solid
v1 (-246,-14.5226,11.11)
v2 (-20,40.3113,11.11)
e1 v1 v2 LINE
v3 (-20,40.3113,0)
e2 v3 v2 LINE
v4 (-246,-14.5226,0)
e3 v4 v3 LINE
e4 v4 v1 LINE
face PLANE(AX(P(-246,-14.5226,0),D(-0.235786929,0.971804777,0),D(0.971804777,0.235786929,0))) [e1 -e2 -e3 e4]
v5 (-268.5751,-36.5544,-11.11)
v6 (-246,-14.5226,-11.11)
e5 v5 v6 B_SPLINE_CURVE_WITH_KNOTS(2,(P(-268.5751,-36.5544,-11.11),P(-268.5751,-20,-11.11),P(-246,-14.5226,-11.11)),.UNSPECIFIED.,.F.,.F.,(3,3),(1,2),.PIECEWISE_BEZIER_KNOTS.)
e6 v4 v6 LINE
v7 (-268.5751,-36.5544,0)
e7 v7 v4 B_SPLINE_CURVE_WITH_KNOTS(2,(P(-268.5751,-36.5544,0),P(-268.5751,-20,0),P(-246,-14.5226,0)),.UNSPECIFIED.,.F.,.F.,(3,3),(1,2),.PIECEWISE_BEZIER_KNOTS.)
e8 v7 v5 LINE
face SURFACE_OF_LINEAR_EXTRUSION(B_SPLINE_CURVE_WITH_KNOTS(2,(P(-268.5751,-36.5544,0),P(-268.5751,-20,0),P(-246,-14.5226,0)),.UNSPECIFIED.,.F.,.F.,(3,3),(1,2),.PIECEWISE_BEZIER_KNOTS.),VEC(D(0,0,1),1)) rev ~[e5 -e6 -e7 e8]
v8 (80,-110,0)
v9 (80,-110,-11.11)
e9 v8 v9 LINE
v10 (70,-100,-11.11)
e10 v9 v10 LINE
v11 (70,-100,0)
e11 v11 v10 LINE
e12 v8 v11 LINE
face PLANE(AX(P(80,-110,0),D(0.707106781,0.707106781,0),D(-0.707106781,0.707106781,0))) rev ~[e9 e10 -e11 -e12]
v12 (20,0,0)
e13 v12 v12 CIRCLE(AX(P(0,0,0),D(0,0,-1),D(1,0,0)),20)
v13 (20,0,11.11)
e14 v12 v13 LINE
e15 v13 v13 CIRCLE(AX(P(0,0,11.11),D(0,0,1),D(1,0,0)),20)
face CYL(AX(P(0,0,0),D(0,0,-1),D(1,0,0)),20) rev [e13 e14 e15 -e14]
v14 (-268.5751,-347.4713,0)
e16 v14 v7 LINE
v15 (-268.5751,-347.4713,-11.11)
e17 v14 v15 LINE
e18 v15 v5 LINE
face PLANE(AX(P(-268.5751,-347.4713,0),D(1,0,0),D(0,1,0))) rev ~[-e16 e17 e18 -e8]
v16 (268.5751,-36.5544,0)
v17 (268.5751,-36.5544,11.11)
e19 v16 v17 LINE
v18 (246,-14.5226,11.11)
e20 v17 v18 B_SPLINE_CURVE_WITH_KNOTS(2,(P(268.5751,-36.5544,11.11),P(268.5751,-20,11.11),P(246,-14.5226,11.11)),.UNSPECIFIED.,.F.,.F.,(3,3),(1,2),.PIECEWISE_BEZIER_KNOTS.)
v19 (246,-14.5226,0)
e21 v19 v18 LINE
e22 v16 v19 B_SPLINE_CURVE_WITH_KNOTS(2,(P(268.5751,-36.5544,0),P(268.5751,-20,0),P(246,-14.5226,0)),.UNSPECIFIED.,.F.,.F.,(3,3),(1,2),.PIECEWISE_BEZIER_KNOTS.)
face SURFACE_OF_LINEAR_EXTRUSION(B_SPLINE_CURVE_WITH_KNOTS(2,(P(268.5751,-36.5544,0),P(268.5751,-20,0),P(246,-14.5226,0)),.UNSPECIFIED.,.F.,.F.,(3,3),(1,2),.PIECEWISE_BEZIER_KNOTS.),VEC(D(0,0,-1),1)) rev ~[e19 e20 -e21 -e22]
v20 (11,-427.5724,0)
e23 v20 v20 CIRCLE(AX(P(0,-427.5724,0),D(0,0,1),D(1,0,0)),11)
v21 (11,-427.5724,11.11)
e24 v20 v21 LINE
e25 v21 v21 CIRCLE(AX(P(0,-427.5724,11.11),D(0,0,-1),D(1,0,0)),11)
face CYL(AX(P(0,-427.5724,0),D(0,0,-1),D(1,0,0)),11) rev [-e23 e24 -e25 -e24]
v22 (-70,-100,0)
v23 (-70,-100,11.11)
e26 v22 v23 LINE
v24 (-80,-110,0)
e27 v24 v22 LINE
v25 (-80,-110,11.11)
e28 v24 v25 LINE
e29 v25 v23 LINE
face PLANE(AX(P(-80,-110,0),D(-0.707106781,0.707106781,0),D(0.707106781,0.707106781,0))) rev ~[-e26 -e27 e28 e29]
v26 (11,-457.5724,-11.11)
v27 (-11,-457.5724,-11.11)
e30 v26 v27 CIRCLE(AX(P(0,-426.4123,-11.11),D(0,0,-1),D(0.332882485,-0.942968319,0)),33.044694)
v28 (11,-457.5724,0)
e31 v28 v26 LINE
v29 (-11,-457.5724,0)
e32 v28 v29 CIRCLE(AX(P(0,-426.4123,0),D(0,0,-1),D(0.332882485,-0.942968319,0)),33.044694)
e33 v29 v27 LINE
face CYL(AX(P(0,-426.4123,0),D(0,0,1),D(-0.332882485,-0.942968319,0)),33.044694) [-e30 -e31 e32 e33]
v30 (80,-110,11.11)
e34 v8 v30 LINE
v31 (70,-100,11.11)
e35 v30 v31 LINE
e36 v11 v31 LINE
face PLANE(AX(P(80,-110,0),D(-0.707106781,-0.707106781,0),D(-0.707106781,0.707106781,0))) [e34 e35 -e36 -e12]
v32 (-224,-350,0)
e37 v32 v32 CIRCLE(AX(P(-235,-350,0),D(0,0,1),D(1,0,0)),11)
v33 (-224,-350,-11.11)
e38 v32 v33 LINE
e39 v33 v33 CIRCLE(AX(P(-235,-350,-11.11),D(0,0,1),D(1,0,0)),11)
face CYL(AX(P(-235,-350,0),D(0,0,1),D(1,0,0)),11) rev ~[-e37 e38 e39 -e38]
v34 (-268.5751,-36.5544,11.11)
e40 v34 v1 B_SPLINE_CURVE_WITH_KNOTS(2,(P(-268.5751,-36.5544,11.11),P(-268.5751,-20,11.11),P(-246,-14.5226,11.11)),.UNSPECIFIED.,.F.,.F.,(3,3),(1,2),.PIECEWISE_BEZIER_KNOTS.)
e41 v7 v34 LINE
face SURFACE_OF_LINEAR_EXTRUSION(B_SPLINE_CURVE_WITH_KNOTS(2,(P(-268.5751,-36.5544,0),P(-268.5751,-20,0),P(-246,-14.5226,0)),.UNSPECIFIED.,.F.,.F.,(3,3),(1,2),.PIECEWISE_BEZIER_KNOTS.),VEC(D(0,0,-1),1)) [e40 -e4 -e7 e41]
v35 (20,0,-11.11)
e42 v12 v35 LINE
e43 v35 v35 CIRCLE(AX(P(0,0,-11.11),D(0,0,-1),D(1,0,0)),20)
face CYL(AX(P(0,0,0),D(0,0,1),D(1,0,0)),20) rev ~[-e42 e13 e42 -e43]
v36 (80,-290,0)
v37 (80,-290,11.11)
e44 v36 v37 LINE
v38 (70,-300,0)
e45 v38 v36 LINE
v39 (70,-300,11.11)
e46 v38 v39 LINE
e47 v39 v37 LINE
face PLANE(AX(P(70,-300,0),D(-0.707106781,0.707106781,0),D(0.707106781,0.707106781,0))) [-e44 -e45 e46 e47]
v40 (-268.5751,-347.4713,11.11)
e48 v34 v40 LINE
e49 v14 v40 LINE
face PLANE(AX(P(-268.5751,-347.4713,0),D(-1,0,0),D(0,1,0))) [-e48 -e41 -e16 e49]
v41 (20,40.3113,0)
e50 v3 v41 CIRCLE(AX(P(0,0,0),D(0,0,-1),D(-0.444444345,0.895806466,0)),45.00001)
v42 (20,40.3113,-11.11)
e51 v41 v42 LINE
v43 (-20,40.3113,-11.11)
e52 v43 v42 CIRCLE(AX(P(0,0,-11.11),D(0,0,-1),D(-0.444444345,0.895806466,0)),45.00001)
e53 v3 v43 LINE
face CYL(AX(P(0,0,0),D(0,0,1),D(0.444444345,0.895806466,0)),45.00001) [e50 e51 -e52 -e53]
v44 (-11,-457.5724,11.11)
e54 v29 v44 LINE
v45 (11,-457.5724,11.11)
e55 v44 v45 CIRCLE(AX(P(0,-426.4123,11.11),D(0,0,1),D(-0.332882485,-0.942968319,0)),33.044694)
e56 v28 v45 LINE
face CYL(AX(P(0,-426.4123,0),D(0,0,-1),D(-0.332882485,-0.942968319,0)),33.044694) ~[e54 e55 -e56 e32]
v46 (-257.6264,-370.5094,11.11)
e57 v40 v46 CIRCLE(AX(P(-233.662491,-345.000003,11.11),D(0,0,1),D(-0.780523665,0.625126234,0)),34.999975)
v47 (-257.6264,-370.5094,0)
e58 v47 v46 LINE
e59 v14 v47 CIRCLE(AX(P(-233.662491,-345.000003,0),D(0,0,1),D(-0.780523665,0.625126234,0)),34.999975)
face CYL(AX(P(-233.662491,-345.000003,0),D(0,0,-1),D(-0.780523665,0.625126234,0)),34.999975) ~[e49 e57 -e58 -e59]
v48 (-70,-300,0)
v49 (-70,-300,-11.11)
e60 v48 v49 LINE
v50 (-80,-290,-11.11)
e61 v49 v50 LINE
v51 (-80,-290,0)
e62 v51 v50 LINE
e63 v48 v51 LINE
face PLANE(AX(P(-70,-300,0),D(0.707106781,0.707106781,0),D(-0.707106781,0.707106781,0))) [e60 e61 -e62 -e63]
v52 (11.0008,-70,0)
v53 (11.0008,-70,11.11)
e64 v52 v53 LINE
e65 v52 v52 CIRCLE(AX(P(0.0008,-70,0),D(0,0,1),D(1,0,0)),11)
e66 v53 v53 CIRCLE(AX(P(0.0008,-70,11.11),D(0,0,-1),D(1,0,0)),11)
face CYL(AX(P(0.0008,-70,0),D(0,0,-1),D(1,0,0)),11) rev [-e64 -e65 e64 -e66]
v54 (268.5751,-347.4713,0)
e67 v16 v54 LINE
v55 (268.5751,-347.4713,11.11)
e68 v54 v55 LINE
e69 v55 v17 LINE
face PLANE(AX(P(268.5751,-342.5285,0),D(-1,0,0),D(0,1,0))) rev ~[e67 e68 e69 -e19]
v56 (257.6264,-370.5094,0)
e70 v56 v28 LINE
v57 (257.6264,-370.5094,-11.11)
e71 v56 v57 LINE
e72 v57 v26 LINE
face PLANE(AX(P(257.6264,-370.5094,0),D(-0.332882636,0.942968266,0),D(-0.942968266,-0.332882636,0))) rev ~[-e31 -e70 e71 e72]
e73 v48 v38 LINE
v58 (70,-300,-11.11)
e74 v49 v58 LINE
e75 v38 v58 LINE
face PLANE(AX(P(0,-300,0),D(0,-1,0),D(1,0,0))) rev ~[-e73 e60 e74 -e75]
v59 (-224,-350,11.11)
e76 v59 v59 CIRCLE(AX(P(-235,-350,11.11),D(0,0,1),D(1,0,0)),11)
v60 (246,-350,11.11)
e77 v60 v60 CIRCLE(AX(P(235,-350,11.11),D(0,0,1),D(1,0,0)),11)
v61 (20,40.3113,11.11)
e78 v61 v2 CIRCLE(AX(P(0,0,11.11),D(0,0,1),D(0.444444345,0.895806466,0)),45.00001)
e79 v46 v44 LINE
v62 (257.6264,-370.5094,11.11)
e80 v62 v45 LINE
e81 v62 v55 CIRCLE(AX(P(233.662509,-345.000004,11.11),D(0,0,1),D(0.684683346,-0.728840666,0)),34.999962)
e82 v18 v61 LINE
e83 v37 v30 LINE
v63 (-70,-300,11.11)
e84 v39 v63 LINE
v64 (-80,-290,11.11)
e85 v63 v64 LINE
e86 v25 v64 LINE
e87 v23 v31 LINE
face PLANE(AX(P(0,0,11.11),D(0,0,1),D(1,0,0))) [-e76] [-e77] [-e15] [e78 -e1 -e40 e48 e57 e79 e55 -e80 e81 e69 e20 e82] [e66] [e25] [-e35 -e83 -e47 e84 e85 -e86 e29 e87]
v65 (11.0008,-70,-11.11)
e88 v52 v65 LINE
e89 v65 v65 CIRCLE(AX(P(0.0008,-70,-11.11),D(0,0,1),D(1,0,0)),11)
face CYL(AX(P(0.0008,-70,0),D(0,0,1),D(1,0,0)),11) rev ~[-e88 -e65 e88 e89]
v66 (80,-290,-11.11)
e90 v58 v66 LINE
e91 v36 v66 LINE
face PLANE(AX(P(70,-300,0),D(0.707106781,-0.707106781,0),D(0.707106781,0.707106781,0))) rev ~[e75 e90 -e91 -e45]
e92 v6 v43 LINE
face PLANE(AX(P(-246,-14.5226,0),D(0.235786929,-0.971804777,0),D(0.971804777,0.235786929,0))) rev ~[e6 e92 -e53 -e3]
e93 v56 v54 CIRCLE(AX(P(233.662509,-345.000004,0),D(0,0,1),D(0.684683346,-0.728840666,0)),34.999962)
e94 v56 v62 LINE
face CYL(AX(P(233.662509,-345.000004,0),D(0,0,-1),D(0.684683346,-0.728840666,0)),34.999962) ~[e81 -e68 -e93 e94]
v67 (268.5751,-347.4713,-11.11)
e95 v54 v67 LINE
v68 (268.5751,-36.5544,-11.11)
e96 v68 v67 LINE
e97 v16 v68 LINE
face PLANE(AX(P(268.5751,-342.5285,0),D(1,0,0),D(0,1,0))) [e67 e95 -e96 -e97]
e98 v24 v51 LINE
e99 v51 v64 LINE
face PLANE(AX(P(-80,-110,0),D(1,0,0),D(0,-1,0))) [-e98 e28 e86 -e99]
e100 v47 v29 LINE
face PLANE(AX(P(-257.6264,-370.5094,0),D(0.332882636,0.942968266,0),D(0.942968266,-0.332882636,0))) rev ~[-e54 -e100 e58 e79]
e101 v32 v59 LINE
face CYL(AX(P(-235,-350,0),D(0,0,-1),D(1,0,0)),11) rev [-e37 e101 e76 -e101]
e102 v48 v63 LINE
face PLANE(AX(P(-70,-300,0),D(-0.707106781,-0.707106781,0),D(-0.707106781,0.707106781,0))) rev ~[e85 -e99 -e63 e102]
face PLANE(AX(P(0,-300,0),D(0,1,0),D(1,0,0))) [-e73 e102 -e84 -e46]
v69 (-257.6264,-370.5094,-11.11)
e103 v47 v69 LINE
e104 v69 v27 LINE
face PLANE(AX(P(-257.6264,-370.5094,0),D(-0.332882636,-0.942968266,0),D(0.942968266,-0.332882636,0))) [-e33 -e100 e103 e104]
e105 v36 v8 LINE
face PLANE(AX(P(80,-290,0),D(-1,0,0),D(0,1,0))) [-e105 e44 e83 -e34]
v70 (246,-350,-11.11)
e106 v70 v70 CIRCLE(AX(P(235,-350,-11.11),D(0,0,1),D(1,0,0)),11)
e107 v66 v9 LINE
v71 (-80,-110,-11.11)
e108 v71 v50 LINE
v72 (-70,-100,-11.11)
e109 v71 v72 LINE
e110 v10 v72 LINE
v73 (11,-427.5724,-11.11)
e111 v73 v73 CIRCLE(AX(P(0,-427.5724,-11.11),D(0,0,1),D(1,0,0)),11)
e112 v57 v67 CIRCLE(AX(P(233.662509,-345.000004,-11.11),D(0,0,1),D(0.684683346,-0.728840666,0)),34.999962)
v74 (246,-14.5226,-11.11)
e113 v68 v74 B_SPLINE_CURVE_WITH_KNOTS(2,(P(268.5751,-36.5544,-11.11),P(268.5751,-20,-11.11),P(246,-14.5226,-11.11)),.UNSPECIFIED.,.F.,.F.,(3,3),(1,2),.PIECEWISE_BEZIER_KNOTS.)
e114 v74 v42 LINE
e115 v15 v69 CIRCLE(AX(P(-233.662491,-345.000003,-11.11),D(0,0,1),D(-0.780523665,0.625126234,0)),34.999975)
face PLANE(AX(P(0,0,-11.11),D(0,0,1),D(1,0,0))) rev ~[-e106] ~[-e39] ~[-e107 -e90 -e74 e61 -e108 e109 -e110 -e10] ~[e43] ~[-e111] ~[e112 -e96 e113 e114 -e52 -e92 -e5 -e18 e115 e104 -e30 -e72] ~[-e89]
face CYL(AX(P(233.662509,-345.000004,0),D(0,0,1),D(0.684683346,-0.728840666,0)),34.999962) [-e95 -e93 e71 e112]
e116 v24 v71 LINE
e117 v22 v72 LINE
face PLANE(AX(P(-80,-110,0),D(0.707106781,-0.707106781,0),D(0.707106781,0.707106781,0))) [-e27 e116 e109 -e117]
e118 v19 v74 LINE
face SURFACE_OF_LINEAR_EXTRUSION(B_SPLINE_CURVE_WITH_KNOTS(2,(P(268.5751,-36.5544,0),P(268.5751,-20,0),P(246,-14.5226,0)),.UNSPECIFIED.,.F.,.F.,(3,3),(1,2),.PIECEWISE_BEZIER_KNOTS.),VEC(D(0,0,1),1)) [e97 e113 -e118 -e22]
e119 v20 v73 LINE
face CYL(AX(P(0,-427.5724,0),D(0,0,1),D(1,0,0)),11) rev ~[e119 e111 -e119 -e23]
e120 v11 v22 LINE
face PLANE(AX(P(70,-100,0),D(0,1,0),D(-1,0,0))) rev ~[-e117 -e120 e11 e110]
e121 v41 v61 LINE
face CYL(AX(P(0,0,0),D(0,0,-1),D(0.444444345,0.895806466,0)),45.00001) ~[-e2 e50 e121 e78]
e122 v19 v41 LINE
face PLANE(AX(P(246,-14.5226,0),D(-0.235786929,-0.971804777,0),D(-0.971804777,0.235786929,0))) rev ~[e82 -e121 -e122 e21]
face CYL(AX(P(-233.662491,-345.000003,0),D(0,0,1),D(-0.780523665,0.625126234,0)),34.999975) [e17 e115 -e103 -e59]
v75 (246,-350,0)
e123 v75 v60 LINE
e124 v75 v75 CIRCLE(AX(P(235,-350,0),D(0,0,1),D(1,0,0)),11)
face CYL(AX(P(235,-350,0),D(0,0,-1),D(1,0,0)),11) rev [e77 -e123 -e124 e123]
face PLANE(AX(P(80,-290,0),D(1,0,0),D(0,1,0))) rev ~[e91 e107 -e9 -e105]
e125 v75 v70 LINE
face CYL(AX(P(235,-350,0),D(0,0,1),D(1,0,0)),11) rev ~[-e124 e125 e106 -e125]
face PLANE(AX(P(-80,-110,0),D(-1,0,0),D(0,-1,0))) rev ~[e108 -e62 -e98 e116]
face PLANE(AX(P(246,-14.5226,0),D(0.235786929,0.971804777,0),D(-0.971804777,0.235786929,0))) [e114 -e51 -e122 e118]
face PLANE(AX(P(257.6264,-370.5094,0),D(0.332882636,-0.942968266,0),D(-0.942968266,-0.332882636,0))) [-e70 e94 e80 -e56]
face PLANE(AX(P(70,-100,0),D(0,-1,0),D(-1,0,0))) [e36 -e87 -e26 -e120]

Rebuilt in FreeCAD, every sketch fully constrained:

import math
import FreeCAD as App
import Part
import Sketcher

V = App.Vector
Q = App.Units.Quantity


def add_polygon(sketch, points):
    """Adds a closed chain of lines whose ends are joined by coincident constraints."""
    first, n = sketch.GeometryCount, len(points)
    for a, b in zip(points, points[1:] + points[:1]):
        sketch.addGeometry(Part.LineSegment(App.Vector(*a, 0), App.Vector(*b, 0)), False)
    for i in range(n):
        sketch.addConstraint(Sketcher.Constraint("Coincident", first + i, 2, first + (i + 1) % n, 1))

doc = App.newDocument("Part")
body = doc.addObject("PartDesign::Body", "Body")

# Sketch on XY plane
sketch1 = body.newObject("Sketcher::SketchObject", "Sketch")
sketch1.AttachmentSupport = (doc.getObject("XY_Plane"), [""])
sketch1.MapMode = "FlatFace"
sketch1.addGeometry(Part.ArcOfCircle(Part.Circle(V(0, 0, 0), V(0, 0, 1), 45.00001), math.radians(63.612206), math.radians(116.387794)), False)  # 0
sketch1.addGeometry(Part.LineSegment(V(-20, 40.3113, 0), V(-246, -14.5226, 0)), False)  # 1
sketch1.addGeometry(Part.BSplineCurve([V(-268.5751, -36.5544, 0), V(-268.5751, -20, 0), V(-246, -14.5226, 0)], [3, 3], [1, 2], False, 2, [1, 1, 1], False), False)  # 2
sketch1.addGeometry(Part.LineSegment(V(-268.5751, -36.5544, 0), V(-268.5751, -347.4713, 0)), False)  # 3
sketch1.addGeometry(Part.ArcOfCircle(Part.Circle(V(-233.6625, -345, 0), V(0, 0, 1), 34.999967), math.radians(-175.951053), math.radians(-133.210715)), False)  # 4
sketch1.addGeometry(Part.LineSegment(V(-257.6264, -370.5094, 0), V(-11, -457.5724, 0)), False)  # 5
sketch1.addGeometry(Part.ArcOfCircle(Part.Circle(V(0, -426.4123, 0), V(0, 0, 1), 33.044694), math.radians(-109.443824), math.radians(-70.556176)), False)  # 6
sketch1.addGeometry(Part.LineSegment(V(11, -457.5724, 0), V(257.6264, -370.5094, 0)), False)  # 7
sketch1.addGeometry(Part.ArcOfCircle(Part.Circle(V(233.6625, -345, 0), V(0, 0, 1), 34.999971), math.radians(-46.789285), math.radians(-4.048947)), False)  # 8
sketch1.addGeometry(Part.LineSegment(V(268.5751, -347.4713, 0), V(268.5751, -36.5544, 0)), False)  # 9
sketch1.addGeometry(Part.BSplineCurve([V(268.5751, -36.5544, 0), V(268.5751, -20, 0), V(246, -14.5226, 0)], [3, 3], [1, 2], False, 2, [1, 1, 1], False), False)  # 10
sketch1.addGeometry(Part.LineSegment(V(246, -14.5226, 0), V(20, 40.3113, 0)), False)  # 11
sketch1.addGeometry(Part.Circle(V(0, 0, 0), V(0, 0, 1), 20), False)  # 12
sketch1.addGeometry(Part.Circle(V(0, -427.5724, 0), V(0, 0, 1), 11), False)  # 13
add_polygon(sketch1, [(70, -300), (-70, -300), (-80, -290), (-80, -110), (-70, -100), (70, -100), (80, -110), (80, -290)])  # lines 14-21
sketch1.addGeometry(Part.Circle(V(0.0008, -70, 0), V(0, 0, 1), 11), False)  # 22
sketch1.addGeometry(Part.Circle(V(235, -350, 0), V(0, 0, 1), 11), False)  # 23
sketch1.addGeometry(Part.Circle(V(-235, -350, 0), V(0, 0, 1), 11), False)  # 24
sketch1.addConstraint([
    Sketcher.Constraint("Block", 2),
    Sketcher.Constraint("Block", 10),
    Sketcher.Constraint("Coincident", 0, 2, 1, 1),
    Sketcher.Constraint("Coincident", 1, 2, 2, 2),
    Sketcher.Constraint("Coincident", 2, 1, 3, 1),
    Sketcher.Constraint("Coincident", 3, 2, 4, 1),
    Sketcher.Constraint("Coincident", 4, 2, 5, 1),
    Sketcher.Constraint("Coincident", 5, 2, 6, 1),
    Sketcher.Constraint("Coincident", 6, 2, 7, 1),
    Sketcher.Constraint("Coincident", 7, 2, 8, 1),
    Sketcher.Constraint("Coincident", 8, 2, 9, 1),
    Sketcher.Constraint("Coincident", 9, 2, 10, 1),
    Sketcher.Constraint("Coincident", 10, 2, 11, 1),
    Sketcher.Constraint("Coincident", 11, 2, 0, 1),
    Sketcher.Constraint("Vertical", 3),
    Sketcher.Constraint("Vertical", 9),
    Sketcher.Constraint("Horizontal", 14),
    Sketcher.Constraint("Vertical", 16),
    Sketcher.Constraint("Horizontal", 18),
    Sketcher.Constraint("Vertical", 20),
    Sketcher.Constraint("Coincident", 0, 3, -1, 1),
    Sketcher.Constraint("Coincident", 12, 3, -1, 1),
    Sketcher.Constraint("PointOnObject", 6, 3, -2),
    Sketcher.Constraint("PointOnObject", 13, 3, -2),
    Sketcher.Constraint("Diameter", 12, Q("40 mm")),
    Sketcher.Constraint("Diameter", 13, Q("22 mm")),
    Sketcher.Constraint("Diameter", 22, Q("22 mm")),
    Sketcher.Constraint("Diameter", 23, Q("22 mm")),
    Sketcher.Constraint("Diameter", 24, Q("22 mm")),
    Sketcher.Constraint("Radius", 0, Q("45 mm")),
    Sketcher.Constraint("Radius", 4, Q("35 mm")),
    Sketcher.Constraint("Radius", 8, Q("35 mm")),
    Sketcher.Constraint("DistanceY", 22, 3, -1, 1, Q("70 mm")),
    Sketcher.Constraint("DistanceX", 14, 2, -1, 1, Q("70 mm")),
    Sketcher.Constraint("DistanceX", 17, 2, -1, 1, Q("70 mm")),
    Sketcher.Constraint("DistanceX", -1, 1, 18, 2, Q("70 mm")),
    Sketcher.Constraint("DistanceX", -1, 1, 21, 2, Q("70 mm")),
    Sketcher.Constraint("DistanceY", 5, 2, 13, 3, Q("30 mm")),
    Sketcher.Constraint("DistanceX", 5, 2, 6, 2, Q("22 mm")),
    Sketcher.Constraint("DistanceY", 6, 2, 13, 3, Q("30 mm")),
    Sketcher.Constraint("DistanceX", 0, 2, 11, 2, Q("40 mm")),
    Sketcher.Constraint("DistanceY", 4, 3, 14, 2, Q("45 mm")),
    Sketcher.Constraint("DistanceX", 15, 2, 14, 2, Q("10 mm")),
    Sketcher.Constraint("DistanceY", 14, 2, 15, 2, Q("10 mm")),
    Sketcher.Constraint("DistanceY", 16, 2, 22, 3, Q("40 mm")),
    Sketcher.Constraint("DistanceY", 16, 2, 17, 2, Q("10 mm")),
    Sketcher.Constraint("DistanceX", 18, 2, 19, 2, Q("10 mm")),
    Sketcher.Constraint("DistanceY", 19, 2, 18, 2, Q("10 mm")),
    Sketcher.Constraint("DistanceY", 14, 2, 20, 2, Q("10 mm")),
    Sketcher.Constraint("DistanceY", 16, 1, 16, 2, Q("180 mm")),
    Sketcher.Constraint("DistanceY", 8, 3, -1, 1, Q("345 mm")),
    Sketcher.Constraint("DistanceX", -1, 1, 23, 3, Q("235 mm")),
    Sketcher.Constraint("DistanceY", 23, 3, -1, 1, Q("350 mm")),
    Sketcher.Constraint("DistanceX", 24, 3, -1, 1, Q("235 mm")),
    Sketcher.Constraint("DistanceY", 24, 3, -1, 1, Q("350 mm")),
    Sketcher.Constraint("DistanceX", 0, 2, -1, 1, Q("20 mm")),
    Sketcher.Constraint("Radius", 6, Q("33.0447 mm")),
    Sketcher.Constraint("DistanceY", 3, 2, 3, 1, Q("310.917 mm")),
    Sketcher.Constraint("DistanceY", 9, 1, 9, 2, Q("310.917 mm")),
    Sketcher.Constraint("DistanceY", 6, 3, 3, 2, Q("78.941 mm")),
    Sketcher.Constraint("DistanceY", 4, 2, 3, 2, Q("23.038 mm")),
    Sketcher.Constraint("DistanceX", 8, 3, 7, 2, Q("23.964 mm")),
    Sketcher.Constraint("DistanceX", -1, 1, 22, 3, Q("0.0008 mm")),
])
pad1 = body.newObject("PartDesign::Pad", "Pad")
pad1.Profile = sketch1
pad1.Length = 22.22
pad1.Midplane = True

doc.recompute()
